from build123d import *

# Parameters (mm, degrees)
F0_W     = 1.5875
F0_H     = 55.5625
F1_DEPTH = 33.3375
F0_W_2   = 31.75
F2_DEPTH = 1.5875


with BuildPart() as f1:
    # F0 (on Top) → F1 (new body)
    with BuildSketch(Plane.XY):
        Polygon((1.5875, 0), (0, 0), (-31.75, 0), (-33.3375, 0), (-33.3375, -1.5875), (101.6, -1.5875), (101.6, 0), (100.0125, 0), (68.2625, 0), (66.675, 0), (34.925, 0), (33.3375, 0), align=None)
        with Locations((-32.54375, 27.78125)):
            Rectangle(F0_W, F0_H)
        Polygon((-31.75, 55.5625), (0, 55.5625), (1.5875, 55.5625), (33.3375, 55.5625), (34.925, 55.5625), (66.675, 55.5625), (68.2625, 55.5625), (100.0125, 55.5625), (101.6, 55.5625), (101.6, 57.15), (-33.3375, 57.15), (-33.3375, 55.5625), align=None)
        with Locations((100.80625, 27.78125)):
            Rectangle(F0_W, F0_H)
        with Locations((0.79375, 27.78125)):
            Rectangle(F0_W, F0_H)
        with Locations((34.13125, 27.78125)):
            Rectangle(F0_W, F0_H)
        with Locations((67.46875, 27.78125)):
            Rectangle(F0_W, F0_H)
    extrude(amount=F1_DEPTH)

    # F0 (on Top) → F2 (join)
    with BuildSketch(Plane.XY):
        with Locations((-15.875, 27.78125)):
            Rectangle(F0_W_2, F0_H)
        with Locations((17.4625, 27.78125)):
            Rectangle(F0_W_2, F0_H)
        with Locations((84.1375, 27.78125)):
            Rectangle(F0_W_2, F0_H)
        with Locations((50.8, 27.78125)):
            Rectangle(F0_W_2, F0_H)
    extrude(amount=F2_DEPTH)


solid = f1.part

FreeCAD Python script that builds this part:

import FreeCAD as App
import Part
import Sketcher

V = App.Vector
Q = App.Units.Quantity


def add_polygon(sketch, points):
    """Adds a closed chain of lines whose ends are joined by coincident constraints."""
    first, n = sketch.GeometryCount, len(points)
    for a, b in zip(points, points[1:] + points[:1]):
        sketch.addGeometry(Part.LineSegment(App.Vector(*a, 0), App.Vector(*b, 0)), False)
    for i in range(n):
        sketch.addConstraint(Sketcher.Constraint("Coincident", first + i, 2, first + (i + 1) % n, 1))

doc = App.newDocument("Part")
body = doc.addObject("PartDesign::Body", "Body")

# Sketch on XY plane
sketch1 = body.newObject("Sketcher::SketchObject", "Sketch")
sketch1.AttachmentSupport = (doc.getObject("XY_Plane"), [""])
sketch1.MapMode = "FlatFace"
add_polygon(sketch1, [(-33, -2), (102, -2), (102, 57), (-33, 57)])  # lines 0-3
add_polygon(sketch1, [(100, 0), (68, 0), (68, 56), (100, 56)])  # lines 4-7
add_polygon(sketch1, [(67, 0), (35, 0), (35, 56), (67, 56)])  # lines 8-11
add_polygon(sketch1, [(33, 0), (2, 0), (2, 56), (33, 56)])  # lines 12-15
add_polygon(sketch1, [(0, 0), (-32, 0), (-32, 56), (0, 56)])  # lines 16-19
sketch1.addConstraint([
    Sketcher.Constraint("Horizontal", 0),
    Sketcher.Constraint("Vertical", 1),
    Sketcher.Constraint("Horizontal", 2),
    Sketcher.Constraint("Vertical", 3),
    Sketcher.Constraint("Horizontal", 4),
    Sketcher.Constraint("Vertical", 5),
    Sketcher.Constraint("Horizontal", 6),
    Sketcher.Constraint("Vertical", 7),
    Sketcher.Constraint("Horizontal", 8),
    Sketcher.Constraint("Vertical", 9),
    Sketcher.Constraint("Horizontal", 10),
    Sketcher.Constraint("Vertical", 11),
    Sketcher.Constraint("Horizontal", 12),
    Sketcher.Constraint("Vertical", 13),
    Sketcher.Constraint("Horizontal", 14),
    Sketcher.Constraint("Vertical", 15),
    Sketcher.Constraint("Horizontal", 16),
    Sketcher.Constraint("Vertical", 17),
    Sketcher.Constraint("Horizontal", 18),
    Sketcher.Constraint("Vertical", 19),
    Sketcher.Constraint("Coincident", 19, 2, -1, 1),
    Sketcher.Constraint("PointOnObject", 4, 2, -1),
    Sketcher.Constraint("PointOnObject", 8, 2, -1),
    Sketcher.Constraint("PointOnObject", 12, 2, -1),
    Sketcher.Constraint("Horizontal", 6, 2, 9, 2),
    Sketcher.Constraint("Horizontal", 10, 2, 13, 2),
    Sketcher.Constraint("Horizontal", 14, 2, 17, 2),
    Sketcher.Constraint("Equal", 6, 8),
    Sketcher.Constraint("Equal", 10, 12),
    Sketcher.Constraint("Equal", 14, 16),
    Sketcher.Constraint("DistanceX", -1, 1, 0, 2, Q("4 in")),
    Sketcher.Constraint("DistanceX", 3, 2, 4, 2, Q("4 in")),
    Sketcher.Constraint("DistanceX", 4, 2, 4, 1, Q("1.25 in")),
    Sketcher.Constraint("DistanceX", 0, 1, 0, 2, Q("5.3125 in")),
    Sketcher.Constraint("DistanceY", 1, 1, 1, 2, Q("2.3125 in")),
    Sketcher.Constraint("DistanceY", 5, 1, 5, 2, Q("2.1875 in")),
    Sketcher.Constraint("DistanceY", -1, 1, 1, 2, Q("2.25 in")),
    Sketcher.Constraint("DistanceX", -1, 1, 8, 2, Q("1.375 in")),
    Sketcher.Constraint("DistanceX", -1, 1, 12, 2, Q("0.0625 in")),
])
pad1 = body.newObject("PartDesign::Pad", "Pad")
pad1.Profile = sketch1
pad1.Length = Q("1.3125 in")

# Sketch on XY plane
sketch2 = body.newObject("Sketcher::SketchObject", "Sketch001")
sketch2.AttachmentSupport = (doc.getObject("XY_Plane"), [""])
sketch2.MapMode = "FlatFace"
add_polygon(sketch2, [(-32, 56), (-32, 0), (0, 0), (0, 56)])  # lines 0-3
add_polygon(sketch2, [(2, 56), (2, 0), (33, 0), (33, 56)])  # lines 4-7
add_polygon(sketch2, [(68, 56), (68, 0), (100, 0), (100, 56)])  # lines 8-11
add_polygon(sketch2, [(35, 56), (35, 0), (67, 0), (67, 56)])  # lines 12-15
sketch2.addConstraint([
    Sketcher.Constraint("Vertical", 0),
    Sketcher.Constraint("Horizontal", 1),
    Sketcher.Constraint("Vertical", 2),
    Sketcher.Constraint("Horizontal", 3),
    Sketcher.Constraint("Vertical", 4),
    Sketcher.Constraint("Horizontal", 5),
    Sketcher.Constraint("Vertical", 6),
    Sketcher.Constraint("Horizontal", 7),
    Sketcher.Constraint("Vertical", 8),
    Sketcher.Constraint("Horizontal", 9),
    Sketcher.Constraint("Vertical", 10),
    Sketcher.Constraint("Horizontal", 11),
    Sketcher.Constraint("Vertical", 12),
    Sketcher.Constraint("Horizontal", 13),
    Sketcher.Constraint("Vertical", 14),
    Sketcher.Constraint("Horizontal", 15),
    Sketcher.Constraint("Coincident", 1, 2, -1, 1),
    Sketcher.Constraint("PointOnObject", 4, 2, -1),
    Sketcher.Constraint("PointOnObject", 8, 2, -1),
    Sketcher.Constraint("PointOnObject", 12, 2, -1),
    Sketcher.Constraint("Horizontal", 3, 2, 6, 2),
    Sketcher.Constraint("Horizontal", 7, 2, 10, 2),
    Sketcher.Constraint("Horizontal", 11, 2, 14, 2),
    Sketcher.Constraint("Equal", 3, 5),
    Sketcher.Constraint("Equal", 7, 9),
    Sketcher.Constraint("Equal", 11, 13),
    Sketcher.Constraint("DistanceX", 1, 1, 1, 2, Q("1.25 in")),
    Sketcher.Constraint("DistanceY", 0, 2, 0, 1, Q("2.1875 in")),
    Sketcher.Constraint("DistanceX", -1, 1, 4, 2, Q("0.0625 in")),
    Sketcher.Constraint("DistanceX", -1, 1, 8, 2, Q("2.6875 in")),
    Sketcher.Constraint("DistanceX", -1, 1, 12, 2, Q("1.375 in")),
])
pad2 = body.newObject("PartDesign::Pad", "Pad001")
pad2.Profile = sketch2
pad2.Length = Q("0.0625 in")

doc.recompute()
